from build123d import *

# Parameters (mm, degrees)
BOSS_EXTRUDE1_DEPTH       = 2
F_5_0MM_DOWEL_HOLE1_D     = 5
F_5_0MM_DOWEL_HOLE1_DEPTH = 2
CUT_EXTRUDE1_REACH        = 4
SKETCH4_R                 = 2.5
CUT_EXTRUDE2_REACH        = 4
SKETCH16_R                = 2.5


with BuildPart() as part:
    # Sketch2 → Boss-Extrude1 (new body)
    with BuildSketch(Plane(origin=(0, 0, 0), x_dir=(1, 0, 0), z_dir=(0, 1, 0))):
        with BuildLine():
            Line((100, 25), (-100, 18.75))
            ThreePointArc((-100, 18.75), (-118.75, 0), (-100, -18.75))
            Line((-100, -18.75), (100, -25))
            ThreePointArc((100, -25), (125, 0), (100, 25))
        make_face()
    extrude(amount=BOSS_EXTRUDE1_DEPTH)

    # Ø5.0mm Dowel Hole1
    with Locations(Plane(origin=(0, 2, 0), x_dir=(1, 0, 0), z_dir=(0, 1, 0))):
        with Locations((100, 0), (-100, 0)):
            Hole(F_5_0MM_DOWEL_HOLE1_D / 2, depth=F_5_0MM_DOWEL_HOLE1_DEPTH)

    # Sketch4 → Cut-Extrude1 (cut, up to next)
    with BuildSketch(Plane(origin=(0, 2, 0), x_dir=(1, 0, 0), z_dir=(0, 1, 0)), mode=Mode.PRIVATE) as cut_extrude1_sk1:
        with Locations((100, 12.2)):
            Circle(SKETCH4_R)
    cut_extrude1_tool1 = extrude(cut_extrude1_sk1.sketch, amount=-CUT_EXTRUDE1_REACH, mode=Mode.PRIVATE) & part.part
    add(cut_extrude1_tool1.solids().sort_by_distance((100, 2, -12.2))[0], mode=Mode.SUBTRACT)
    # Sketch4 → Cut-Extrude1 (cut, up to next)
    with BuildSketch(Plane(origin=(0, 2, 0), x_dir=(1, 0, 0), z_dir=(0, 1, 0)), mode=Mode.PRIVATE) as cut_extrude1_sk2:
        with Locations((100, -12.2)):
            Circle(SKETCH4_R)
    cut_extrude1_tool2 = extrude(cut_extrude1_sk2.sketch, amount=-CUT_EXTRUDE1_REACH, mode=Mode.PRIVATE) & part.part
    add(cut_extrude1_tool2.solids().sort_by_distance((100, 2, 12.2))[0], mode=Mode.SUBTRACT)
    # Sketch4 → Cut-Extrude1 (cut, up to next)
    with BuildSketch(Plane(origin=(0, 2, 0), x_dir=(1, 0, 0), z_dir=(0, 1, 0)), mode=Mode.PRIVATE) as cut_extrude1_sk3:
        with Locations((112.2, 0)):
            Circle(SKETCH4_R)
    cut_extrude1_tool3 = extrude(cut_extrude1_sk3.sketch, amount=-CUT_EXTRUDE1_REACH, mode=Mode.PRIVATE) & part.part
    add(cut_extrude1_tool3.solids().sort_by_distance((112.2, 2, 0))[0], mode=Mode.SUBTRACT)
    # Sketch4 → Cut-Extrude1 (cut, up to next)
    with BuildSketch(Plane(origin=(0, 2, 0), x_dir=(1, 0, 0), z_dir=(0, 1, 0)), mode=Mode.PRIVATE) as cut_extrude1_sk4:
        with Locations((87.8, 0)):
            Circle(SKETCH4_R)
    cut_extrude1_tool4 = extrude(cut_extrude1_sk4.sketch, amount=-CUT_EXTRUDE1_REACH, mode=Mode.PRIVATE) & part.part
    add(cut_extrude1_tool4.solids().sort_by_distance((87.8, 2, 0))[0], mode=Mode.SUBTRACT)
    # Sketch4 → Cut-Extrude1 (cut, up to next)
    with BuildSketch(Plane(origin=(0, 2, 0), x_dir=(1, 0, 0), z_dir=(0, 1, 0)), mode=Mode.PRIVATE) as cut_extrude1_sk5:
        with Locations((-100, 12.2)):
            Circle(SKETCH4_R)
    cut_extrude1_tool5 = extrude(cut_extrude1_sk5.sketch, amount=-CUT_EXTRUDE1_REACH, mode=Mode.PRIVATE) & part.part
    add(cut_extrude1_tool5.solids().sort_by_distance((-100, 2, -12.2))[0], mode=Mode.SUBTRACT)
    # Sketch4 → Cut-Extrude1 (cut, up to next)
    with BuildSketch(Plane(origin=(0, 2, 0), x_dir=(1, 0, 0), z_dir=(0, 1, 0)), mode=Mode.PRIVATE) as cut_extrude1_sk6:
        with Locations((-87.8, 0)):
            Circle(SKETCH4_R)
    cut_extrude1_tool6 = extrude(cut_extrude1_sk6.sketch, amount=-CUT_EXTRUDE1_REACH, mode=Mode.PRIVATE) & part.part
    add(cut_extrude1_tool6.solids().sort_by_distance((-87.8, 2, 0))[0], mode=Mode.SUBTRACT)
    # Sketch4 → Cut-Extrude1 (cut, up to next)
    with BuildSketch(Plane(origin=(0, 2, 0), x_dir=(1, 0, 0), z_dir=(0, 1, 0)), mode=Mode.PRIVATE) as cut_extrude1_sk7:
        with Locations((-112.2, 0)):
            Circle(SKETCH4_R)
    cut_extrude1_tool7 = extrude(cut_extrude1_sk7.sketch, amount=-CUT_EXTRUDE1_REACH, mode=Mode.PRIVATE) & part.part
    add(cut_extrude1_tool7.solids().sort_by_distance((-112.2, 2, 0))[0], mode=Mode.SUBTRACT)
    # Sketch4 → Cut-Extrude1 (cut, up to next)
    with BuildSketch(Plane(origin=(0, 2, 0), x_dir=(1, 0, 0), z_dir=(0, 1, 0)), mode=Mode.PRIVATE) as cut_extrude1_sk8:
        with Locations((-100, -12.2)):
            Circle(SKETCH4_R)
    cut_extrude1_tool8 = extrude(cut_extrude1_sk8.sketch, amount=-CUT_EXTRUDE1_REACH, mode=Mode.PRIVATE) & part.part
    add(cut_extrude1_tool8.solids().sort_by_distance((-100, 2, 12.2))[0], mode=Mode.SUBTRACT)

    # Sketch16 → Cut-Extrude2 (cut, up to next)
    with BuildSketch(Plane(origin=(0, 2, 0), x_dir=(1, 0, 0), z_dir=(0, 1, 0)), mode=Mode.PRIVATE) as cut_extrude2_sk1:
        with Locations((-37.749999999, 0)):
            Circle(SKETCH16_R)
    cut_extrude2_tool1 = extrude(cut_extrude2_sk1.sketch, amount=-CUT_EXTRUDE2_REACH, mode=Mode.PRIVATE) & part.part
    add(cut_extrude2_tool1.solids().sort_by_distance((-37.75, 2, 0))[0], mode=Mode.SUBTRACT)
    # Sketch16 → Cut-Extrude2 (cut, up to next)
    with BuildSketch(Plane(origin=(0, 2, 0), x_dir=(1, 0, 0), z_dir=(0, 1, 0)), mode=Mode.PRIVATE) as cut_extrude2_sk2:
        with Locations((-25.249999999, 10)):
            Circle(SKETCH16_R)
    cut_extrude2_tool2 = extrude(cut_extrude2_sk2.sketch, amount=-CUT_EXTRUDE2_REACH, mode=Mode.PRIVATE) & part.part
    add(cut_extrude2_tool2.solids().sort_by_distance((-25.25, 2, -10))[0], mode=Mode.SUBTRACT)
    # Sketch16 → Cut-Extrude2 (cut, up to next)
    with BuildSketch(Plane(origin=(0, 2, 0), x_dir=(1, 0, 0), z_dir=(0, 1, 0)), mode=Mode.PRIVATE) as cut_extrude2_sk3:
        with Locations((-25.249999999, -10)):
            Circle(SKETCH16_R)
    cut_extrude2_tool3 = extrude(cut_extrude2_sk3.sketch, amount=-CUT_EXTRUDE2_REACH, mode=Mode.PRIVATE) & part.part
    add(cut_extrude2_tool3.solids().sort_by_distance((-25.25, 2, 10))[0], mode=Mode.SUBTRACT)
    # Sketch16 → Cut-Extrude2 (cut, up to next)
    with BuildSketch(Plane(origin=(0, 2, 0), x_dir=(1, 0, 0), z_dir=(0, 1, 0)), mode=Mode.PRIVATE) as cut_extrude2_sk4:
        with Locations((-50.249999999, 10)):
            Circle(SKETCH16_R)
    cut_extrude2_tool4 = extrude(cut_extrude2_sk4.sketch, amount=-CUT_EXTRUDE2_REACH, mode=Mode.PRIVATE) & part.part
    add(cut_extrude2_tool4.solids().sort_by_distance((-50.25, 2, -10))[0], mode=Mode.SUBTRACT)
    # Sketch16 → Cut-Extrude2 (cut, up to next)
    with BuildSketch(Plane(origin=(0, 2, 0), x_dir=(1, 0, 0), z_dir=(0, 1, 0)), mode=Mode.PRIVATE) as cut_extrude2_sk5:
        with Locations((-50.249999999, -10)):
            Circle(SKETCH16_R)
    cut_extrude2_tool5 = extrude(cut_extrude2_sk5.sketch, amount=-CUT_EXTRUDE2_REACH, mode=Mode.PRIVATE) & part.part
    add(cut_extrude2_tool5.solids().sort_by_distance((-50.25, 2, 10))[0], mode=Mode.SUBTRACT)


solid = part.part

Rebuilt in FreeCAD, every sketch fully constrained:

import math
import FreeCAD as App
import Part
import Sketcher

doc = App.newDocument("Part")
body = doc.addObject("PartDesign::Body", "Body")

# Sketch on XZ plane
sketch1 = body.newObject("Sketcher::SketchObject", "Sketch")
sketch1.AttachmentSupport = (doc.getObject("XZ_Plane"), [""])
sketch1.MapMode = "FlatFace"
sketch1.addGeometry(Part.LineSegment(App.Vector(100, -25, 0), App.Vector(-100, -19, 0)), False)
sketch1.addGeometry(Part.ArcOfCircle(Part.Circle(App.Vector(-100, 0, 0), App.Vector(0, 0, 1), 19), math.radians(90), math.radians(270)), False)
sketch1.addGeometry(Part.LineSegment(App.Vector(-100, 19, 0), App.Vector(100, 25, 0)), False)
sketch1.addGeometry(Part.ArcOfCircle(Part.Circle(App.Vector(100, 0, 0), App.Vector(0, 0, 1), 25), math.radians(-90), math.radians(90)), False)
sketch1.addConstraint(Sketcher.Constraint("Coincident", 0, 2, 1, 2))
sketch1.addConstraint(Sketcher.Constraint("Coincident", 1, 1, 2, 1))
sketch1.addConstraint(Sketcher.Constraint("Coincident", 2, 2, 3, 2))
sketch1.addConstraint(Sketcher.Constraint("Coincident", 3, 1, 0, 1))
sketch1.addConstraint(Sketcher.Constraint("Symmetric", 1, 3, 3, 3, -1, 1))
sketch1.addConstraint(Sketcher.Constraint("Symmetric", 0, 2, 1, 1, -1))
sketch1.addConstraint(Sketcher.Constraint("Vertical", 1, 3, 0, 2))
sketch1.addConstraint(Sketcher.Constraint("Vertical", 3, 3, 2, 2))
sketch1.addConstraint(Sketcher.Constraint("Vertical", 2, 2, 3, 1))
sketch1.addConstraint(Sketcher.Constraint("Radius", 3, 25.0))
sketch1.addConstraint(Sketcher.Constraint("Radius", 1, 18.75))
sketch1.addConstraint(Sketcher.Constraint("DistanceX", 1, 3, -1, 1, 100.0))
pad1 = body.newObject("PartDesign::Pad", "Pad")
pad1.Profile = sketch1
pad1.Length = 2
pad1.Reversed = True

# Sketch on XZ plane
sketch2 = body.newObject("Sketcher::SketchObject", "Sketch001")
sketch2.AttachmentSupport = (doc.getObject("XZ_Plane"), [""])
sketch2.MapMode = "FlatFace"
sketch2.AttachmentOffset = App.Placement(App.Vector(0, 0, -2), App.Rotation())
sketch2.addGeometry(Part.Circle(App.Vector(100, 0, 0), App.Vector(0, 0, 1), 2.5), False)
sketch2.addGeometry(Part.Circle(App.Vector(-100, 0, 0), App.Vector(0, 0, 1), 2.5), False)
sketch2.addConstraint(Sketcher.Constraint("Equal", 0, 1))
sketch2.addConstraint(Sketcher.Constraint("Symmetric", 0, 3, 1, 3, -1, 1))
sketch2.addConstraint(Sketcher.Constraint("PointOnObject", 0, 3, -1))
sketch2.addConstraint(Sketcher.Constraint("Diameter", 0, 5.0))
sketch2.addConstraint(Sketcher.Constraint("DistanceX", -1, 1, 0, 3, 100.0))
doc.recompute()
hole = body.newObject("PartDesign::Hole", "Hole")
hole.Profile = sketch2
hole.ThreadType = "None"
hole.Diameter = 5
hole.DepthType = "Dimension"
hole.Depth = 2
hole.DrillPoint = "Flat"
hole.Reversed = True

# Sketch on XZ plane
sketch3 = body.newObject("Sketcher::SketchObject", "Sketch002")
sketch3.AttachmentSupport = (doc.getObject("XZ_Plane"), [""])
sketch3.MapMode = "FlatFace"
sketch3.AttachmentOffset = App.Placement(App.Vector(0, 0, -2), App.Rotation())
sketch3.addGeometry(Part.Circle(App.Vector(100, -12.2, 0), App.Vector(0, 0, 1), 2.5), False)
sketch3.addConstraint(Sketcher.Constraint("Diameter", 0, 5.0))
sketch3.addConstraint(Sketcher.Constraint("DistanceX", -1, 1, 0, 3, 100.0))
sketch3.addConstraint(Sketcher.Constraint("DistanceY", 0, 3, -1, 1, 12.2))
pocket1 = body.newObject("PartDesign::Pocket", "Pocket")
pocket1.Profile = sketch3
pocket1.Type = "UpToFirst"
pocket1.Reversed = True

# Sketch on XZ plane
sketch4 = body.newObject("Sketcher::SketchObject", "Sketch003")
sketch4.AttachmentSupport = (doc.getObject("XZ_Plane"), [""])
sketch4.MapMode = "FlatFace"
sketch4.AttachmentOffset = App.Placement(App.Vector(0, 0, -2), App.Rotation())
sketch4.addGeometry(Part.Circle(App.Vector(100, 12.2, 0), App.Vector(0, 0, 1), 2.5), False)
sketch4.addConstraint(Sketcher.Constraint("Diameter", 0, 5.0))
sketch4.addConstraint(Sketcher.Constraint("DistanceX", -1, 1, 0, 3, 100.0))
sketch4.addConstraint(Sketcher.Constraint("DistanceY", -1, 1, 0, 3, 12.2))
pocket2 = body.newObject("PartDesign::Pocket", "Pocket001")
pocket2.Profile = sketch4
pocket2.Type = "UpToFirst"
pocket2.Reversed = True

# Sketch on XZ plane
sketch5 = body.newObject("Sketcher::SketchObject", "Sketch004")
sketch5.AttachmentSupport = (doc.getObject("XZ_Plane"), [""])
sketch5.MapMode = "FlatFace"
sketch5.AttachmentOffset = App.Placement(App.Vector(0, 0, -2), App.Rotation())
sketch5.addGeometry(Part.Circle(App.Vector(112.2, 0, 0), App.Vector(0, 0, 1), 2.5), False)
sketch5.addConstraint(Sketcher.Constraint("PointOnObject", 0, 3, -1))
sketch5.addConstraint(Sketcher.Constraint("Diameter", 0, 5.0))
sketch5.addConstraint(Sketcher.Constraint("DistanceX", -1, 1, 0, 3, 112.2))
pocket3 = body.newObject("PartDesign::Pocket", "Pocket002")
pocket3.Profile = sketch5
pocket3.Type = "UpToFirst"
pocket3.Reversed = True

# Sketch on XZ plane
sketch6 = body.newObject("Sketcher::SketchObject", "Sketch005")
sketch6.AttachmentSupport = (doc.getObject("XZ_Plane"), [""])
sketch6.MapMode = "FlatFace"
sketch6.AttachmentOffset = App.Placement(App.Vector(0, 0, -2), App.Rotation())
sketch6.addGeometry(Part.Circle(App.Vector(87.8, 0, 0), App.Vector(0, 0, 1), 2.5), False)
sketch6.addConstraint(Sketcher.Constraint("PointOnObject", 0, 3, -1))
sketch6.addConstraint(Sketcher.Constraint("Diameter", 0, 5.0))
sketch6.addConstraint(Sketcher.Constraint("DistanceX", -1, 1, 0, 3, 87.8))
pocket4 = body.newObject("PartDesign::Pocket", "Pocket003")
pocket4.Profile = sketch6
pocket4.Type = "UpToFirst"
pocket4.Reversed = True

# Sketch on XZ plane
sketch7 = body.newObject("Sketcher::SketchObject", "Sketch006")
sketch7.AttachmentSupport = (doc.getObject("XZ_Plane"), [""])
sketch7.MapMode = "FlatFace"
sketch7.AttachmentOffset = App.Placement(App.Vector(0, 0, -2), App.Rotation())
sketch7.addGeometry(Part.Circle(App.Vector(-100, -12.2, 0), App.Vector(0, 0, 1), 2.5), False)
sketch7.addConstraint(Sketcher.Constraint("Diameter", 0, 5.0))
sketch7.addConstraint(Sketcher.Constraint("DistanceX", 0, 3, -1, 1, 100.0))
sketch7.addConstraint(Sketcher.Constraint("DistanceY", 0, 3, -1, 1, 12.2))
pocket5 = body.newObject("PartDesign::Pocket", "Pocket004")
pocket5.Profile = sketch7
pocket5.Type = "UpToFirst"
pocket5.Reversed = True

# Sketch on XZ plane
sketch8 = body.newObject("Sketcher::SketchObject", "Sketch007")
sketch8.AttachmentSupport = (doc.getObject("XZ_Plane"), [""])
sketch8.MapMode = "FlatFace"
sketch8.AttachmentOffset = App.Placement(App.Vector(0, 0, -2), App.Rotation())
sketch8.addGeometry(Part.Circle(App.Vector(-87.8, 0, 0), App.Vector(0, 0, 1), 2.5), False)
sketch8.addConstraint(Sketcher.Constraint("PointOnObject", 0, 3, -1))
sketch8.addConstraint(Sketcher.Constraint("Diameter", 0, 5.0))
sketch8.addConstraint(Sketcher.Constraint("DistanceX", 0, 3, -1, 1, 87.8))
pocket6 = body.newObject("PartDesign::Pocket", "Pocket005")
pocket6.Profile = sketch8
pocket6.Type = "UpToFirst"
pocket6.Reversed = True

# Sketch on XZ plane
sketch9 = body.newObject("Sketcher::SketchObject", "Sketch008")
sketch9.AttachmentSupport = (doc.getObject("XZ_Plane"), [""])
sketch9.MapMode = "FlatFace"
sketch9.AttachmentOffset = App.Placement(App.Vector(0, 0, -2), App.Rotation())
sketch9.addGeometry(Part.Circle(App.Vector(-112.2, 0, 0), App.Vector(0, 0, 1), 2.5), False)
sketch9.addConstraint(Sketcher.Constraint("PointOnObject", 0, 3, -1))
sketch9.addConstraint(Sketcher.Constraint("Diameter", 0, 5.0))
sketch9.addConstraint(Sketcher.Constraint("DistanceX", 0, 3, -1, 1, 112.2))
pocket7 = body.newObject("PartDesign::Pocket", "Pocket006")
pocket7.Profile = sketch9
pocket7.Type = "UpToFirst"
pocket7.Reversed = True

# Sketch on XZ plane
sketch10 = body.newObject("Sketcher::SketchObject", "Sketch009")
sketch10.AttachmentSupport = (doc.getObject("XZ_Plane"), [""])
sketch10.MapMode = "FlatFace"
sketch10.AttachmentOffset = App.Placement(App.Vector(0, 0, -2), App.Rotation())
sketch10.addGeometry(Part.Circle(App.Vector(-100, 12.2, 0), App.Vector(0, 0, 1), 2.5), False)
sketch10.addConstraint(Sketcher.Constraint("Diameter", 0, 5.0))
sketch10.addConstraint(Sketcher.Constraint("DistanceX", 0, 3, -1, 1, 100.0))
sketch10.addConstraint(Sketcher.Constraint("DistanceY", -1, 1, 0, 3, 12.2))
pocket8 = body.newObject("PartDesign::Pocket", "Pocket007")
pocket8.Profile = sketch10
pocket8.Type = "UpToFirst"
pocket8.Reversed = True

# Sketch on XZ plane
sketch11 = body.newObject("Sketcher::SketchObject", "Sketch010")
sketch11.AttachmentSupport = (doc.getObject("XZ_Plane"), [""])
sketch11.MapMode = "FlatFace"
sketch11.AttachmentOffset = App.Placement(App.Vector(0, 0, -2), App.Rotation())
sketch11.addGeometry(Part.Circle(App.Vector(-37.7, 0, 0), App.Vector(0, 0, 1), 2.5), False)
sketch11.addConstraint(Sketcher.Constraint("PointOnObject", 0, 3, -1))
sketch11.addConstraint(Sketcher.Constraint("Diameter", 0, 5.0))
sketch11.addConstraint(Sketcher.Constraint("DistanceX", 0, 3, -1, 1, 37.75))
pocket9 = body.newObject("PartDesign::Pocket", "Pocket008")
pocket9.Profile = sketch11
pocket9.Type = "UpToFirst"
pocket9.Reversed = True

# Sketch on XZ plane
sketch12 = body.newObject("Sketcher::SketchObject", "Sketch011")
sketch12.AttachmentSupport = (doc.getObject("XZ_Plane"), [""])
sketch12.MapMode = "FlatFace"
sketch12.AttachmentOffset = App.Placement(App.Vector(0, 0, -2), App.Rotation())
sketch12.addGeometry(Part.Circle(App.Vector(-25.2, -10, 0), App.Vector(0, 0, 1), 2.5), False)
sketch12.addConstraint(Sketcher.Constraint("Diameter", 0, 5.0))
sketch12.addConstraint(Sketcher.Constraint("DistanceY", 0, 3, -1, 1, 10.0))
sketch12.addConstraint(Sketcher.Constraint("DistanceX", 0, 3, -1, 1, 25.25))
pocket10 = body.newObject("PartDesign::Pocket", "Pocket009")
pocket10.Profile = sketch12
pocket10.Type = "UpToFirst"
pocket10.Reversed = True

# Sketch on XZ plane
sketch13 = body.newObject("Sketcher::SketchObject", "Sketch012")
sketch13.AttachmentSupport = (doc.getObject("XZ_Plane"), [""])
sketch13.MapMode = "FlatFace"
sketch13.AttachmentOffset = App.Placement(App.Vector(0, 0, -2), App.Rotation())
sketch13.addGeometry(Part.Circle(App.Vector(-25.2, 10, 0), App.Vector(0, 0, 1), 2.5), False)
sketch13.addConstraint(Sketcher.Constraint("Diameter", 0, 5.0))
sketch13.addConstraint(Sketcher.Constraint("DistanceY", -1, 1, 0, 3, 10.0))
sketch13.addConstraint(Sketcher.Constraint("DistanceX", 0, 3, -1, 1, 25.25))
pocket11 = body.newObject("PartDesign::Pocket", "Pocket010")
pocket11.Profile = sketch13
pocket11.Type = "UpToFirst"
pocket11.Reversed = True

# Sketch on XZ plane
sketch14 = body.newObject("Sketcher::SketchObject", "Sketch013")
sketch14.AttachmentSupport = (doc.getObject("XZ_Plane"), [""])
sketch14.MapMode = "FlatFace"
sketch14.AttachmentOffset = App.Placement(App.Vector(0, 0, -2), App.Rotation())
sketch14.addGeometry(Part.Circle(App.Vector(-50.2, -10, 0), App.Vector(0, 0, 1), 2.5), False)
sketch14.addConstraint(Sketcher.Constraint("Diameter", 0, 5.0))
sketch14.addConstraint(Sketcher.Constraint("DistanceY", 0, 3, -1, 1, 10.0))
sketch14.addConstraint(Sketcher.Constraint("DistanceX", 0, 3, -1, 1, 50.25))
pocket12 = body.newObject("PartDesign::Pocket", "Pocket011")
pocket12.Profile = sketch14
pocket12.Type = "UpToFirst"
pocket12.Reversed = True

# Sketch on XZ plane
sketch15 = body.newObject("Sketcher::SketchObject", "Sketch014")
sketch15.AttachmentSupport = (doc.getObject("XZ_Plane"), [""])
sketch15.MapMode = "FlatFace"
sketch15.AttachmentOffset = App.Placement(App.Vector(0, 0, -2), App.Rotation())
sketch15.addGeometry(Part.Circle(App.Vector(-50.2, 10, 0), App.Vector(0, 0, 1), 2.5), False)
sketch15.addConstraint(Sketcher.Constraint("Diameter", 0, 5.0))
sketch15.addConstraint(Sketcher.Constraint("DistanceY", -1, 1, 0, 3, 10.0))
sketch15.addConstraint(Sketcher.Constraint("DistanceX", 0, 3, -1, 1, 50.25))
pocket13 = body.newObject("PartDesign::Pocket", "Pocket012")
pocket13.Profile = sketch15
pocket13.Type = "UpToFirst"
pocket13.Reversed = True

doc.recompute()
